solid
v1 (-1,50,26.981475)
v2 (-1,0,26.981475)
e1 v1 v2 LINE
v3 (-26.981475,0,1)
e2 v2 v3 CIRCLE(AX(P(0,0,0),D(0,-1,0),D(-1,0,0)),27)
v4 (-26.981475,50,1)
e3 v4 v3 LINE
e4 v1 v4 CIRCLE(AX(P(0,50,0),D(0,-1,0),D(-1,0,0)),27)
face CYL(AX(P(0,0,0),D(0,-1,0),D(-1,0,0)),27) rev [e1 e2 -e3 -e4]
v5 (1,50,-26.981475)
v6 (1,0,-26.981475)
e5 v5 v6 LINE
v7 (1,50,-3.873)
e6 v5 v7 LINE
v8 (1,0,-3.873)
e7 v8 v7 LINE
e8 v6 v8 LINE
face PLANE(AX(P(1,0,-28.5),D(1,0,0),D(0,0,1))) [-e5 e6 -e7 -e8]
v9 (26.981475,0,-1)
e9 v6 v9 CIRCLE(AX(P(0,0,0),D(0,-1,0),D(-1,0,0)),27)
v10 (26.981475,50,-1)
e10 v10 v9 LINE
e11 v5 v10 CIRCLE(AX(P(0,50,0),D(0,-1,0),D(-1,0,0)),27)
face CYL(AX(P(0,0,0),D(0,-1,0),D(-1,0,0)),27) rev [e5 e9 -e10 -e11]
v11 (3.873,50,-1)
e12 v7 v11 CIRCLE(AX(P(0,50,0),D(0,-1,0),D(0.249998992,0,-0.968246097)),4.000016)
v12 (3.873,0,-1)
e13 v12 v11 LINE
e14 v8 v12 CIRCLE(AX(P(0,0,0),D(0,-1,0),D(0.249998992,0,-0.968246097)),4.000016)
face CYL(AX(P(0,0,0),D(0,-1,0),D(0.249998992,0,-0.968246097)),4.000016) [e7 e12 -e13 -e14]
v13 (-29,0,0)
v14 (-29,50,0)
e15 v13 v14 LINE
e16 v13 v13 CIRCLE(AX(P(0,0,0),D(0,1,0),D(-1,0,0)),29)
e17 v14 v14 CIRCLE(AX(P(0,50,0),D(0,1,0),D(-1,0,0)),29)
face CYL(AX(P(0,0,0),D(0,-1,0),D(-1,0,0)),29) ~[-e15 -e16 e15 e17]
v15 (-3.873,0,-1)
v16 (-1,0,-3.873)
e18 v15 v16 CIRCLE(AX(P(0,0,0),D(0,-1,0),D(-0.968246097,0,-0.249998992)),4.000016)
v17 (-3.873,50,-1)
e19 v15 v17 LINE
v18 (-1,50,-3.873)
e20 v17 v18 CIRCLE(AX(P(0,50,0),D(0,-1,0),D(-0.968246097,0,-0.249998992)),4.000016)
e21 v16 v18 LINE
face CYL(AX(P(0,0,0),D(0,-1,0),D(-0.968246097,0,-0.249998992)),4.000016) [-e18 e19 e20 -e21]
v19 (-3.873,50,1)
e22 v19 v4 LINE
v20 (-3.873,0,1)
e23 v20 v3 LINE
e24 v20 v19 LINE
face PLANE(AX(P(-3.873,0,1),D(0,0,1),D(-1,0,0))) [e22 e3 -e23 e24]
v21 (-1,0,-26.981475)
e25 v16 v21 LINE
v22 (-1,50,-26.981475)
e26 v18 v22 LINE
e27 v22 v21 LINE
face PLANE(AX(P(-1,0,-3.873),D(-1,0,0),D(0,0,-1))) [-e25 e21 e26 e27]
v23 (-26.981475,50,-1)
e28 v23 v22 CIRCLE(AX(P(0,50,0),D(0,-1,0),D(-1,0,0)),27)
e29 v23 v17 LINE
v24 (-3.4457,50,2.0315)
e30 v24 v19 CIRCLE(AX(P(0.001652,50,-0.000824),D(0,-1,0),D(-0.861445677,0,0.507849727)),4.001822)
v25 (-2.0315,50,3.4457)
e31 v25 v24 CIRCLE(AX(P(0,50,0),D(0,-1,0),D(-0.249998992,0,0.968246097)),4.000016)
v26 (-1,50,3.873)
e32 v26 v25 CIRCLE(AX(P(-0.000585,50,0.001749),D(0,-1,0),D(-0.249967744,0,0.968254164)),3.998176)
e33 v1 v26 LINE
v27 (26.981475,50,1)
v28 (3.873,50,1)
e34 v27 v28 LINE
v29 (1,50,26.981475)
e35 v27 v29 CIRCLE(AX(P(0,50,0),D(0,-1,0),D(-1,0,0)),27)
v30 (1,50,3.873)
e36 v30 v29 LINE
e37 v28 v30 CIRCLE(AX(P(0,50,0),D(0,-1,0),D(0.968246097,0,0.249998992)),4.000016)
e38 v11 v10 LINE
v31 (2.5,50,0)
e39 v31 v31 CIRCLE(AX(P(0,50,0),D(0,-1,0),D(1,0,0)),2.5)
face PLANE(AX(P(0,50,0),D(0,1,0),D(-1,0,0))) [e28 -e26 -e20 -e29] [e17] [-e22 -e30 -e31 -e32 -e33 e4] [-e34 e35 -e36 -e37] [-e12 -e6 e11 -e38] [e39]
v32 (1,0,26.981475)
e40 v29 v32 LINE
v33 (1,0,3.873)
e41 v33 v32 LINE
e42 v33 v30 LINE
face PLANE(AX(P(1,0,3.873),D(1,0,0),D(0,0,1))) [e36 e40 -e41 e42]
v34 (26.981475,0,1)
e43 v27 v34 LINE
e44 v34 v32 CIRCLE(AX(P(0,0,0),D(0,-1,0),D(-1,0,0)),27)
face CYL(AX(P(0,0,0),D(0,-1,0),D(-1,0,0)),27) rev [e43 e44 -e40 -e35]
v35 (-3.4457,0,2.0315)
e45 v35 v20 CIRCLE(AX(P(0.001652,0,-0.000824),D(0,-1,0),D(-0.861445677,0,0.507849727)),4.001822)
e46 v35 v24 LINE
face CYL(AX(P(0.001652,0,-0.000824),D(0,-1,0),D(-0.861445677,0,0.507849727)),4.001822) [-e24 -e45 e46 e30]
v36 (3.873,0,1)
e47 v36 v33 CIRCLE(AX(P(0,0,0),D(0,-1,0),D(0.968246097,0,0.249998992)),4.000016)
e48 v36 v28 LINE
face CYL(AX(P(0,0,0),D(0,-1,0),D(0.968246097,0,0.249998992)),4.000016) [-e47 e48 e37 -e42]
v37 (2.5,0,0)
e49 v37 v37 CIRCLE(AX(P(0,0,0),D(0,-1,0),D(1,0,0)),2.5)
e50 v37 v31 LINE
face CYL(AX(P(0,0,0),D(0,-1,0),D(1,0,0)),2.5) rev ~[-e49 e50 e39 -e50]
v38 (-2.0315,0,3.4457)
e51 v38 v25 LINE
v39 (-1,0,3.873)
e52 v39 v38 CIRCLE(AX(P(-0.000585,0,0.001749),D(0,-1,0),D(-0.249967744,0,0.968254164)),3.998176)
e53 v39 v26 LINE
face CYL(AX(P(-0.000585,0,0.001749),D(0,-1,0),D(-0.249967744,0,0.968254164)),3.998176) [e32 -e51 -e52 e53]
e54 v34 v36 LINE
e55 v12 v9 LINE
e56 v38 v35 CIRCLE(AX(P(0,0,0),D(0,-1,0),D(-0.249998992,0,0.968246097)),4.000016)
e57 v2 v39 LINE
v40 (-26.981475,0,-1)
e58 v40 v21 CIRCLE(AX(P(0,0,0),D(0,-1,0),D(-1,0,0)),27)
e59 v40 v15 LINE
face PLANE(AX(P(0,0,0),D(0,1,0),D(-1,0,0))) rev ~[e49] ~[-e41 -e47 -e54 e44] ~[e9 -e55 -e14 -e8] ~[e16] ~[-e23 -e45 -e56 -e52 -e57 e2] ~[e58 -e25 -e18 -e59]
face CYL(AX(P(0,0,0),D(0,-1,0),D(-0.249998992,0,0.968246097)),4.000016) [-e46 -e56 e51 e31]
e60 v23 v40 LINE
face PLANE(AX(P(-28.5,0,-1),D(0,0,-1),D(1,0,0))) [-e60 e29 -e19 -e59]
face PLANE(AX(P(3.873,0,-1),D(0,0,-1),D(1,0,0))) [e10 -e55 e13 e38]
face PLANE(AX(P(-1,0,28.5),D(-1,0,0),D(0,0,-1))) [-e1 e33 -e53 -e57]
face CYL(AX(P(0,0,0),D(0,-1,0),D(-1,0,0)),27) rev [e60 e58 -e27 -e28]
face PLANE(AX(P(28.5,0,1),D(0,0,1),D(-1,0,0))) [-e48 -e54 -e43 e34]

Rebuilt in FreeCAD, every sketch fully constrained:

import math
import FreeCAD as App
import Part
import Sketcher


def faces_at(feature, points):
    """Names of the faces that lie closest to the given points."""
    faces = feature.Shape.Faces
    near = lambda p: min(range(len(faces)), key=lambda i: faces[i].distToShape(Part.Vertex(*p))[0])
    return sorted({f"Face{near(p) + 1}" for p in points})

doc = App.newDocument("Part")
body = doc.addObject("PartDesign::Body", "Body")

# Sketch on XZ plane
sketch1 = doc.addObject("Sketcher::SketchObject", "Sketch")
body.addObject(sketch1)
sketch1.AttachmentSupport = (doc.XZ_Plane, [""])
sketch1.MapMode = "FlatFace"
sketch1.addGeometry(Part.Circle(App.Vector(0, 0, 0), App.Vector(0, 0, 1), 29), False)
sketch1.addConstraint([
    Sketcher.Constraint("Coincident", 0, 3, -1, 1),
    Sketcher.Constraint("Diameter", 0, 58.0),
])
pad1 = doc.addObject("PartDesign::Pad", "Pad")
body.addObject(pad1)
pad1.Profile = sketch1
pad1.Length = 50
pad1.Reversed = True
doc.recompute()

thickness = doc.addObject("PartDesign::Thickness", "Thickness")
body.addObject(thickness)
thickness.Base = (pad1, faces_at(pad1, [(2.104, 0, -7.121), (2.104, 50, -7.121)]))
thickness.Value = 2
thickness.Reversed = True
thickness.Join = "Intersection"

# Sketch on XZ plane
sketch2 = doc.addObject("Sketcher::SketchObject", "Sketch001")
body.addObject(sketch2)
sketch2.AttachmentSupport = (doc.XZ_Plane, [""])
sketch2.MapMode = "FlatFace"
sketch2.addGeometry([
    Part.LineSegment(App.Vector(1, 3.873, 0), App.Vector(1, 28.5, 0)),  # 0
    Part.LineSegment(App.Vector(1, 28.5, 0), App.Vector(-1, 28.5, 0)),  # 1
    Part.LineSegment(App.Vector(-1, 28.5, 0), App.Vector(-1, 3.873, 0)),  # 2
    Part.ArcOfCircle(Part.Circle(App.Vector(-0.000585, 0.001749, 0), App.Vector(0, 0, 1), 3.998176), math.radians(104.475603), math.radians(120.528067)),  # 3
    Part.ArcOfCircle(Part.Circle(App.Vector(0, 0, 0), App.Vector(0, 0, 1), 4.000016), math.radians(120.522556), math.radians(149.477444)),  # 4
    Part.ArcOfCircle(Part.Circle(App.Vector(0.001652, -0.000824, 0), App.Vector(0, 0, 1), 4.001822), math.radians(149.479293), math.radians(165.517036)),  # 5
    Part.LineSegment(App.Vector(-3.873, 1, 0), App.Vector(-28.5, 1, 0)),  # 6
    Part.LineSegment(App.Vector(-28.5, 1, 0), App.Vector(-28.5, -1, 0)),  # 7
    Part.LineSegment(App.Vector(-28.5, -1, 0), App.Vector(-3.873, -1, 0)),  # 8
    Part.ArcOfCircle(Part.Circle(App.Vector(0, 0, 0), App.Vector(0, 0, 1), 4.000016), math.radians(-165.522547), math.radians(-104.477453)),  # 9
    Part.LineSegment(App.Vector(-1, -3.873, 0), App.Vector(-1, -28.5, 0)),  # 10
    Part.LineSegment(App.Vector(-1, -28.5, 0), App.Vector(1, -28.5, 0)),  # 11
    Part.LineSegment(App.Vector(1, -28.5, 0), App.Vector(1, -3.873, 0)),  # 12
    Part.ArcOfCircle(Part.Circle(App.Vector(0, 0, 0), App.Vector(0, 0, 1), 4.000016), math.radians(-75.522547), math.radians(-14.477453)),  # 13
    Part.LineSegment(App.Vector(3.873, -1, 0), App.Vector(28.5, -1, 0)),  # 14
    Part.LineSegment(App.Vector(28.5, -1, 0), App.Vector(28.5, 1, 0)),  # 15
    Part.LineSegment(App.Vector(28.5, 1, 0), App.Vector(3.873, 1, 0)),  # 16
    Part.ArcOfCircle(Part.Circle(App.Vector(0, 0, 0), App.Vector(0, 0, 1), 4.000016), math.radians(14.477453), math.radians(75.522547)),  # 17
    Part.Circle(App.Vector(0, 0, 0), App.Vector(0, 0, 1), 2.5),  # 18
], False)
sketch2.addConstraint([
    Sketcher.Constraint("Coincident", 0, 2, 1, 1),
    Sketcher.Constraint("Coincident", 1, 2, 2, 1),
    Sketcher.Constraint("Coincident", 2, 2, 3, 1),
    Sketcher.Constraint("Coincident", 3, 2, 4, 1),
    Sketcher.Constraint("Coincident", 4, 2, 5, 1),
    Sketcher.Constraint("Coincident", 5, 2, 6, 1),
    Sketcher.Constraint("Coincident", 6, 2, 7, 1),
    Sketcher.Constraint("Coincident", 7, 2, 8, 1),
    Sketcher.Constraint("Coincident", 8, 2, 9, 1),
    Sketcher.Constraint("Coincident", 9, 2, 10, 1),
    Sketcher.Constraint("Coincident", 10, 2, 11, 1),
    Sketcher.Constraint("Coincident", 11, 2, 12, 1),
    Sketcher.Constraint("Coincident", 12, 2, 13, 1),
    Sketcher.Constraint("Coincident", 13, 2, 14, 1),
    Sketcher.Constraint("Coincident", 14, 2, 15, 1),
    Sketcher.Constraint("Coincident", 15, 2, 16, 1),
    Sketcher.Constraint("Coincident", 16, 2, 17, 1),
    Sketcher.Constraint("Coincident", 17, 2, 0, 1),
    Sketcher.Constraint("Vertical", 0),
    Sketcher.Constraint("Horizontal", 1),
    Sketcher.Constraint("Vertical", 2),
    Sketcher.Constraint("Horizontal", 6),
    Sketcher.Constraint("Vertical", 7),
    Sketcher.Constraint("Horizontal", 8),
    Sketcher.Constraint("Vertical", 10),
    Sketcher.Constraint("Horizontal", 11),
    Sketcher.Constraint("Vertical", 12),
    Sketcher.Constraint("Horizontal", 14),
    Sketcher.Constraint("Vertical", 15),
    Sketcher.Constraint("Horizontal", 16),
    Sketcher.Constraint("Coincident", 4, 3, -1, 1),
    Sketcher.Constraint("Coincident", 9, 3, -1, 1),
    Sketcher.Constraint("Coincident", 13, 3, -1, 1),
    Sketcher.Constraint("Coincident", 17, 3, -1, 1),
    Sketcher.Constraint("Coincident", 18, 3, -1, 1),
    Sketcher.Constraint("Diameter", 18, 5.0),
    Sketcher.Constraint("DistanceX", 1, 2, 1, 1, 2.0),
    Sketcher.Constraint("DistanceX", 11, 1, 11, 2, 2.0),
    Sketcher.Constraint("DistanceY", 7, 2, 7, 1, 2.0),
    Sketcher.Constraint("DistanceY", 15, 1, 15, 2, 2.0),
    Sketcher.Constraint("Radius", 4, 4.0),
    Sketcher.Constraint("Radius", 9, 4.0),
    Sketcher.Constraint("Radius", 13, 4.0),
    Sketcher.Constraint("Radius", 17, 4.0),
    Sketcher.Constraint("DistanceX", -1, 1, 0, 2, 1.0),
    Sketcher.Constraint("DistanceY", -1, 1, 5, 2, 1.0),
    Sketcher.Constraint("DistanceX", 9, 2, -1, 1, 1.0),
    Sketcher.Constraint("DistanceY", 13, 2, -1, 1, 1.0),
    Sketcher.Constraint("DistanceY", -1, 1, 0, 2, 28.5),
    Sketcher.Constraint("DistanceX", 6, 2, -1, 1, 28.5),
    Sketcher.Constraint("DistanceY", 10, 2, -1, 1, 28.5),
    Sketcher.Constraint("DistanceX", -1, 1, 14, 2, 28.5),
    Sketcher.Constraint("Radius", 3, 3.9982),
    Sketcher.Constraint("Radius", 5, 4.0018),
    Sketcher.Constraint("DistanceX", 6, 2, 6, 1, 24.627),
    Sketcher.Constraint("DistanceY", 2, 2, 2, 1, 24.627),
    Sketcher.Constraint("DistanceX", 3, 2, 3, 3, 2.031),
    Sketcher.Constraint("DistanceX", 4, 2, -1, 1, 3.4457),
])
pad2 = doc.addObject("PartDesign::Pad", "Pad001")
body.addObject(pad2)
pad2.Profile = sketch2
pad2.Length = 50
pad2.Reversed = True

doc.recompute()
